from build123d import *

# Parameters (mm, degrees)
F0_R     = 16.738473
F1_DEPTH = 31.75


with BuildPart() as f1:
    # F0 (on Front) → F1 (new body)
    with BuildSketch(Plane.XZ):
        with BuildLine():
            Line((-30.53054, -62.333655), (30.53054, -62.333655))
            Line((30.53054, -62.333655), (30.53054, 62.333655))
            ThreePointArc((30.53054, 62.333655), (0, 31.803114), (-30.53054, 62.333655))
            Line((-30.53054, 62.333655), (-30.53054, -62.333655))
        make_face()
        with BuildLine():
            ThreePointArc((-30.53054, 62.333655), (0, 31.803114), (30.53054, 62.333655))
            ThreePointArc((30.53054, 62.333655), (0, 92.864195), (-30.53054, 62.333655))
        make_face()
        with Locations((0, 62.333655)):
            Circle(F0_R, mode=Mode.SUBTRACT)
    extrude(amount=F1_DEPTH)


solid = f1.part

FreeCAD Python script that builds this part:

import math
import FreeCAD as App
import Part
import Sketcher
from FreeCAD import Vector

doc = App.newDocument("Part")
params = doc.addObject("Spreadsheet::Sheet", "Params")
for row, (alias, value) in enumerate([
    ("pad1_length", "1.25 in"),
], start=1):
    params.set(f"A{row}", alias)
    params.set(f"B{row}", "=" + value)
    params.setAlias(f"B{row}", alias)

body = doc.addObject("PartDesign::Body", "Body")

# Sketch on XZ plane
sketch1 = body.newObject("Sketcher::SketchObject", "Sketch")
sketch1.AttachmentSupport = (doc.getObject("XZ_Plane"), [""])
sketch1.MapMode = "FlatFace"
sketch1.addGeometry([
    Part.LineSegment(Vector(-31, -62, 0), Vector(31, -62, 0)),  # 0
    Part.LineSegment(Vector(31, -62, 0), Vector(31, 62, 0)),  # 1
    Part.ArcOfCircle(Part.Circle(Vector(0, 62, 0), Vector(0, 0, 1), 31), math.radians(0), math.radians(180)),  # 2
    Part.LineSegment(Vector(-31, 62, 0), Vector(-31, -62, 0)),  # 3
    Part.Circle(Vector(0, 62, 0), Vector(0, 0, 1), 17),  # 4
], False)
sketch1.addConstraint([
    Sketcher.Constraint("Coincident", 0, 2, 1, 1),
    Sketcher.Constraint("Tangent", 1, 2, 2, 1),
    Sketcher.Constraint("Tangent", 2, 2, 3, 1),
    Sketcher.Constraint("Coincident", 3, 2, 0, 1),
    Sketcher.Constraint("Horizontal", 0),
    Sketcher.Constraint("Vertical", 1),
    Sketcher.Constraint("Vertical", 3),
    Sketcher.Constraint("Coincident", 4, 3, 2, 3),
    Sketcher.Constraint("Symmetric", 0, 2, 2, 2, -1, 1),
    Sketcher.Constraint("Radius", 2, 30.53054),
    Sketcher.Constraint("Diameter", 4, 33.476946),
    Sketcher.Constraint("DistanceY", 1, 1, 1, 2, 124.66731),
])
pad1 = body.newObject("PartDesign::Pad", "Pad")
pad1.Profile = sketch1
pad1.setExpression("Length", "Params.pad1_length")

doc.recompute()
